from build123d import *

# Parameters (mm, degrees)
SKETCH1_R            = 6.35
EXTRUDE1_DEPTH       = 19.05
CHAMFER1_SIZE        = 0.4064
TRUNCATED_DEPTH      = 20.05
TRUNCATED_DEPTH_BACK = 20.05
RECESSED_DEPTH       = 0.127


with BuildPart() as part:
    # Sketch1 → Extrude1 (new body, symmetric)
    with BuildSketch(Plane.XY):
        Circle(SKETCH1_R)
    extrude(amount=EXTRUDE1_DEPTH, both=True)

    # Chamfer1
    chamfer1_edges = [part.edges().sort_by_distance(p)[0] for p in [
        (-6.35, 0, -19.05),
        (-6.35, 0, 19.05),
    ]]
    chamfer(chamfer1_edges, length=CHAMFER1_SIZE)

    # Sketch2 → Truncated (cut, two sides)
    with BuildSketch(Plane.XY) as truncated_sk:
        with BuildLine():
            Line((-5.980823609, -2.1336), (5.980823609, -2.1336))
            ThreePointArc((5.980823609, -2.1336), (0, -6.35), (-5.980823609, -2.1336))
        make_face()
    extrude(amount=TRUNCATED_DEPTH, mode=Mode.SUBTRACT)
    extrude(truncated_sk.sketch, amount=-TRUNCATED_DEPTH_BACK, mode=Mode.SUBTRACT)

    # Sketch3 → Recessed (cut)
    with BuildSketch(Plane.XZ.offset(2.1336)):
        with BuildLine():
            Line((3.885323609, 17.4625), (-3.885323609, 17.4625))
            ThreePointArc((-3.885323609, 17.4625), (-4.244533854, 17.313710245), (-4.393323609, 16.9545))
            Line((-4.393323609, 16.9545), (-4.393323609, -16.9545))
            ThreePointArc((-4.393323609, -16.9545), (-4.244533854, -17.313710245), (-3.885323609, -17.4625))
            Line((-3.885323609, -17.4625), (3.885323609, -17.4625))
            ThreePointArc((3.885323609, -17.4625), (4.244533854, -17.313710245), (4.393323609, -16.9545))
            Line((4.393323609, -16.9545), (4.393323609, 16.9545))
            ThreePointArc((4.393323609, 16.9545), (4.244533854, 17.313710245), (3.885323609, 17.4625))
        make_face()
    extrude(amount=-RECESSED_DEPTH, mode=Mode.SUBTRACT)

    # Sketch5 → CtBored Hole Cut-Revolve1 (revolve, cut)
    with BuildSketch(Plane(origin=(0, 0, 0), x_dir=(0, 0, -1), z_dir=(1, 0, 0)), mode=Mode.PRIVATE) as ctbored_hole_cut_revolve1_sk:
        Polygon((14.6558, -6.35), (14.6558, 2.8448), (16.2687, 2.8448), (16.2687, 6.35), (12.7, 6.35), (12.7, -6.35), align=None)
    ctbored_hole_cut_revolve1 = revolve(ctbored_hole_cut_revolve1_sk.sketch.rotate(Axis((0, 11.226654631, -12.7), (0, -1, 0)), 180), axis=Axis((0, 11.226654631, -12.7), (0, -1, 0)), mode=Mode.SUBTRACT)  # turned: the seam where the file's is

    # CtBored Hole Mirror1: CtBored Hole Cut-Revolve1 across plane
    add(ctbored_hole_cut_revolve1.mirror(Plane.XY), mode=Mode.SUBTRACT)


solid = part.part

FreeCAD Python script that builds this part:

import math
import FreeCAD as App
import Part
import Sketcher

V = App.Vector
Q = App.Units.Quantity


def edges_at(feature, points):
    """Names of the edges that pass closest to the given points."""
    edges = feature.Shape.Edges
    near = lambda p: min(range(len(edges)), key=lambda i: edges[i].distToShape(Part.Vertex(*p))[0])
    return sorted({f"Edge{near(p) + 1}" for p in points})

doc = App.newDocument("Part")
body = doc.addObject("PartDesign::Body", "Body")

sketch1 = body.newObject("Sketcher::SketchObject", "Sketch")
sketch1.AttachmentSupport = (doc.getObject("XY_Plane"), [""])
sketch1.MapMode = "FlatFace"
sketch1.addGeometry(Part.Circle(V(0, 0, 0), V(0, 0, 1), 6), False)
sketch1.addConstraint([
    Sketcher.Constraint("Coincident", 0, 3, -1, 1),
    Sketcher.Constraint("Diameter", 0, Q("0.5 in")),
])
pad1 = body.newObject("PartDesign::Pad", "Pad")
pad1.Profile = sketch1
pad1.Length = Q("1.5 in")
pad1.Midplane = True
doc.recompute()

chamfer = body.newObject("PartDesign::Chamfer", "Chamfer")
chamfer.Base = (pad1, edges_at(pad1, [(-6.35, 0, -19.05), (-6.35, 0, 19.05)]))
chamfer.Size = Q("0.016 in")

sketch2 = body.newObject("Sketcher::SketchObject", "Sketch001")
sketch2.AttachmentSupport = (doc.getObject("XY_Plane"), [""])
sketch2.MapMode = "FlatFace"
sketch2.addGeometry([
    Part.LineSegment(V(6, -2, 0), V(-6, -2, 0)),
    Part.ArcOfCircle(Part.Circle(V(0, 0, 0), V(0, 0, 1), 6), math.radians(-160), math.radians(-20)),
], False)
sketch2.addConstraint([
    Sketcher.Constraint("Coincident", 0, 1, 1, 2),
    Sketcher.Constraint("Coincident", 1, 1, 0, 2),
    Sketcher.Constraint("Horizontal", 0),
    Sketcher.Constraint("Coincident", 1, 3, -1, 1),
    Sketcher.Constraint("Radius", 1, Q("0.25 in")),
    Sketcher.Constraint("DistanceY", 0, 1, -1, 1, Q("0.084 in")),
])
pocket1 = body.newObject("PartDesign::Pocket", "Pocket")
pocket1.Profile = sketch2
pocket1.Type = "ThroughAll"
pocket1.Midplane = True

sketch3 = body.newObject("Sketcher::SketchObject", "Sketch002")
sketch3.AttachmentSupport = (doc.getObject("XZ_Plane"), [""])
sketch3.MapMode = "FlatFace"
sketch3.AttachmentOffset = App.Placement(V(0, 0, 0.084 * 25.4), App.Rotation())
sketch3.addGeometry([
    Part.LineSegment(V(3.9, 17.5, 0), V(-3.9, 17.5, 0)),
    Part.ArcOfCircle(Part.Circle(V(-3.9, 17, 0), V(0, 0, 1), 0.5), math.radians(90), math.radians(180)),
    Part.LineSegment(V(-4.4, 17, 0), V(-4.4, -17, 0)),
    Part.ArcOfCircle(Part.Circle(V(-3.9, -17, 0), V(0, 0, 1), 0.5), math.radians(180), math.radians(270)),
    Part.LineSegment(V(-3.9, -17.5, 0), V(3.9, -17.5, 0)),
    Part.ArcOfCircle(Part.Circle(V(3.9, -17, 0), V(0, 0, 1), 0.5), math.radians(-90), math.radians(0)),
    Part.LineSegment(V(4.4, -17, 0), V(4.4, 17, 0)),
    Part.ArcOfCircle(Part.Circle(V(3.9, 17, 0), V(0, 0, 1), 0.5), math.radians(0), math.radians(90)),
], False)
sketch3.addConstraint([
    Sketcher.Constraint("Tangent", 0, 2, 1, 1),
    Sketcher.Constraint("Tangent", 1, 2, 2, 1),
    Sketcher.Constraint("Tangent", 2, 2, 3, 1),
    Sketcher.Constraint("Tangent", 3, 2, 4, 1),
    Sketcher.Constraint("Tangent", 4, 2, 5, 1),
    Sketcher.Constraint("Tangent", 5, 2, 6, 1),
    Sketcher.Constraint("Tangent", 6, 2, 7, 1),
    Sketcher.Constraint("Tangent", 7, 2, 0, 1),
    Sketcher.Constraint("Horizontal", 0),
    Sketcher.Constraint("Vertical", 2),
    Sketcher.Constraint("Horizontal", 4),
    Sketcher.Constraint("Vertical", 6),
    Sketcher.Constraint("Equal", 1, 3),
    Sketcher.Constraint("Equal", 3, 5),
    Sketcher.Constraint("Equal", 5, 7),
    Sketcher.Constraint("Symmetric", 1, 3, 5, 3, -1, 1),
    Sketcher.Constraint("Radius", 1, Q("0.02 in")),
    Sketcher.Constraint("DistanceY", 2, 2, 2, 1, Q("1.335 in")),
    Sketcher.Constraint("DistanceX", 0, 2, 0, 1, 7.770647),
])
pocket2 = body.newObject("PartDesign::Pocket", "Pocket001")
pocket2.Profile = sketch3
pocket2.Length = Q("0.005 in")

sketch4 = body.newObject("Sketcher::SketchObject", "Sketch003")
sketch4.AttachmentSupport = (doc.getObject("YZ_Plane"), [""])
sketch4.MapMode = "FlatFace"
sketch4.addGeometry([
    Part.LineSegment(V(-6.3, -14.7, 0), V(2.8, -14.7, 0)),
    Part.LineSegment(V(2.8, -14.7, 0), V(2.8, -16.3, 0)),
    Part.LineSegment(V(2.8, -16.3, 0), V(6.3, -16.3, 0)),
    Part.LineSegment(V(6.3, -16.3, 0), V(6.3, -12.7, 0)),
    Part.LineSegment(V(6.3, -12.7, 0), V(-6.3, -12.7, 0)),
    Part.LineSegment(V(-6.3, -12.7, 0), V(-6.3, -14.7, 0)),
], False)
sketch4.addGeometry(Part.LineSegment(V(6.3, -12.7, 0), V(-6.3, -12.7, 0)), True)
sketch4.addConstraint([
    Sketcher.Constraint("Coincident", 0, 2, 1, 1),
    Sketcher.Constraint("Coincident", 1, 2, 2, 1),
    Sketcher.Constraint("Coincident", 2, 2, 3, 1),
    Sketcher.Constraint("Coincident", 3, 2, 4, 1),
    Sketcher.Constraint("Coincident", 4, 2, 5, 1),
    Sketcher.Constraint("Coincident", 5, 2, 0, 1),
    Sketcher.Constraint("Horizontal", 0),
    Sketcher.Constraint("Vertical", 1),
    Sketcher.Constraint("Horizontal", 2),
    Sketcher.Constraint("Vertical", 3),
    Sketcher.Constraint("Horizontal", 4),
    Sketcher.Constraint("Vertical", 5),
    Sketcher.Constraint("Horizontal", 6),
    Sketcher.Constraint("Coincident", 6, 1, 3, 2),
    Sketcher.Constraint("Vertical", 5, 2, 6, 2),
    Sketcher.Constraint("DistanceX", 4, 2, 4, 1, Q("0.5 in")),
    Sketcher.Constraint("DistanceY", 3, 2, -1, 1, Q("0.5 in")),
    Sketcher.Constraint("DistanceX", 0, 1, 0, 2, Q("0.362 in")),
    Sketcher.Constraint("DistanceY", 5, 2, 5, 1, Q("0.077 in")),
    Sketcher.Constraint("DistanceX", -1, 1, 2, 2, Q("0.25 in")),
    Sketcher.Constraint("DistanceY", 1, 2, 1, 1, Q("0.0635 in")),
])
groove = body.newObject("PartDesign::Groove", "Groove")
groove.Profile = sketch4
groove.ReferenceAxis = (sketch4, ["Axis0"])
groove.Angle = 360
doc.recompute()

mirrored = body.newObject("PartDesign::Mirrored", "Mirrored")
mirrored.Originals = [groove]
mirrored.MirrorPlane = (doc.getObject("XY_Plane"), [""])
body.Tip = mirrored

doc.recompute()
